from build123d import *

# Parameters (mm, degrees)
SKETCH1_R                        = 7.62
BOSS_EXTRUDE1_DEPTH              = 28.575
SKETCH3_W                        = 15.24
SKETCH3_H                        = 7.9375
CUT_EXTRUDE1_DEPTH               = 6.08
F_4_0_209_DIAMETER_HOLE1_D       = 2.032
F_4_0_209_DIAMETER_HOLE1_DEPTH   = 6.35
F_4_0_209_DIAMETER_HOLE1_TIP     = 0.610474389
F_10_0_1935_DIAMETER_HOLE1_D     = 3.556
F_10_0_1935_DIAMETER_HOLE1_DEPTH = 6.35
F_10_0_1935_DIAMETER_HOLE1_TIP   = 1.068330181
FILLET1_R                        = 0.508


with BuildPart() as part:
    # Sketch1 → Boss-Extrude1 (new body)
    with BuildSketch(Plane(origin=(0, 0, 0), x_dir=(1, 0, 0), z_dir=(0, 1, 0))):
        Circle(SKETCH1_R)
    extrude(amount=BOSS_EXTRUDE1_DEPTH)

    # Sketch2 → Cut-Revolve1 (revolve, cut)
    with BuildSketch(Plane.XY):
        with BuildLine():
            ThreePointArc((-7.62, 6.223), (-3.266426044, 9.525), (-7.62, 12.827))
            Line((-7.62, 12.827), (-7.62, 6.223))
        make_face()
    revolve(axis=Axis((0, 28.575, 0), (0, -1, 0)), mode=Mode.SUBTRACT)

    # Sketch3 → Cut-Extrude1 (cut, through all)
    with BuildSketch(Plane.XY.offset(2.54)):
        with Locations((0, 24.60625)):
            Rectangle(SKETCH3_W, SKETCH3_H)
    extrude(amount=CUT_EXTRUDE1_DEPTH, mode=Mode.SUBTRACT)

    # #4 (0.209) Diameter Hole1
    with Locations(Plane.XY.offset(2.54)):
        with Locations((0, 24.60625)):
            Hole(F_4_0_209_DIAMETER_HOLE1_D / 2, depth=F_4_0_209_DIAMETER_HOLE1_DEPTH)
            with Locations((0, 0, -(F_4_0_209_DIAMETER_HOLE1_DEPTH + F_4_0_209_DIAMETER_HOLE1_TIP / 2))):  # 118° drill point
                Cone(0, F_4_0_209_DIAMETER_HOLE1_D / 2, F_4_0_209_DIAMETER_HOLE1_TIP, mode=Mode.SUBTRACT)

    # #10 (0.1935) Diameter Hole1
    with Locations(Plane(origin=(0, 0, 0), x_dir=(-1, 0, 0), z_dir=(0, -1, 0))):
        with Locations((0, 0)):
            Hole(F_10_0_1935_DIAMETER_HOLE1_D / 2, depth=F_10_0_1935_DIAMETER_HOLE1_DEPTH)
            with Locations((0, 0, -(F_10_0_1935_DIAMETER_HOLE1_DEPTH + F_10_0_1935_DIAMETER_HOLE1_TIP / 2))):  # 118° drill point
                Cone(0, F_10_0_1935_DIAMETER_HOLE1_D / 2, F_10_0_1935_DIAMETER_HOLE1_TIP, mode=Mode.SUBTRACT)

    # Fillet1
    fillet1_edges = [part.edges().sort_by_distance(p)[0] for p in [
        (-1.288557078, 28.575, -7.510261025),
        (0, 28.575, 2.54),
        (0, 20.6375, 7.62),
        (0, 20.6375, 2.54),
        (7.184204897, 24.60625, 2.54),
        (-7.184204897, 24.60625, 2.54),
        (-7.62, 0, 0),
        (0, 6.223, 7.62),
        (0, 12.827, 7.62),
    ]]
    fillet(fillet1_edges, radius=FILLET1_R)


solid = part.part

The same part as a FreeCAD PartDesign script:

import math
import FreeCAD as App
import Part
import Sketcher
from FreeCAD import Vector
Q = App.Units.Quantity


def edges_at(feature, points):
    """Names of the edges that pass closest to the given points."""
    edges = feature.Shape.Edges
    near = lambda p: min(range(len(edges)), key=lambda i: edges[i].distToShape(Part.Vertex(*p))[0])
    return sorted({f"Edge{near(p) + 1}" for p in points})

doc = App.newDocument("Part")
body = doc.addObject("PartDesign::Body", "Body")

# Sketch on XZ plane
sketch1 = body.newObject("Sketcher::SketchObject", "Sketch")
sketch1.AttachmentSupport = (doc.getObject("XZ_Plane"), [""])
sketch1.MapMode = "FlatFace"
sketch1.addGeometry(Part.Circle(Vector(0, 0, 0), Vector(0, 0, 1), 8), False)
sketch1.addConstraint([
    Sketcher.Constraint("Coincident", 0, 3, -1, 1),
    Sketcher.Constraint("Diameter", 0, Q("0.6 in")),
])
pad1 = body.newObject("PartDesign::Pad", "Pad")
pad1.Profile = sketch1
pad1.Length = Q("1.125 in")
pad1.Reversed = True

# Sketch on XY plane
sketch2 = body.newObject("Sketcher::SketchObject", "Sketch001")
sketch2.AttachmentSupport = (doc.getObject("XY_Plane"), [""])
sketch2.MapMode = "FlatFace"
sketch2.addGeometry([
    Part.ArcOfCircle(Part.Circle(Vector(-6.7, 9.5, 0), Vector(0, 0, 1), 3.4), math.radians(-106), math.radians(106)),
    Part.LineSegment(Vector(-7.6, 12.8, 0), Vector(-7.6, 6.2, 0)),
], False)
sketch2.addConstraint([
    Sketcher.Constraint("Coincident", 0, 1, 1, 2),
    Sketcher.Constraint("Coincident", 1, 1, 0, 2),
    Sketcher.Constraint("Vertical", 1),
    Sketcher.Constraint("Radius", 0, Q("0.135 in")),
    Sketcher.Constraint("DistanceY", 1, 2, 1, 1, Q("0.26 in")),
    Sketcher.Constraint("DistanceX", 0, 1, -1, 1, Q("0.3 in")),
    Sketcher.Constraint("DistanceY", -1, 1, 0, 3, Q("0.375 in")),
])
groove = body.newObject("PartDesign::Groove", "Groove")
groove.Profile = sketch2
groove.ReferenceAxis = (sketch2, ["V_Axis"])
groove.Angle = 360

# Sketch on XY plane
sketch3 = body.newObject("Sketcher::SketchObject", "Sketch002")
sketch3.AttachmentSupport = (doc.getObject("XY_Plane"), [""])
sketch3.MapMode = "FlatFace"
sketch3.AttachmentOffset = App.Placement(Vector(0, 0, 0.1 * 25.4), App.Rotation())
sketch3.addGeometry([
    Part.LineSegment(Vector(-8, 29, 0), Vector(-8, 21, 0)),
    Part.LineSegment(Vector(-8, 21, 0), Vector(8, 21, 0)),
    Part.LineSegment(Vector(8, 21, 0), Vector(8, 29, 0)),
    Part.LineSegment(Vector(8, 29, 0), Vector(-8, 29, 0)),
], False)
sketch3.addConstraint([
    Sketcher.Constraint("Coincident", 0, 2, 1, 1),
    Sketcher.Constraint("Coincident", 1, 2, 2, 1),
    Sketcher.Constraint("Coincident", 2, 2, 3, 1),
    Sketcher.Constraint("Coincident", 3, 2, 0, 1),
    Sketcher.Constraint("Vertical", 0),
    Sketcher.Constraint("Horizontal", 1),
    Sketcher.Constraint("Vertical", 2),
    Sketcher.Constraint("Horizontal", 3),
    Sketcher.Constraint("DistanceX", 1, 1, 1, 2, Q("0.6 in")),
    Sketcher.Constraint("DistanceX", 0, 2, -1, 1, Q("0.3 in")),
    Sketcher.Constraint("DistanceY", 0, 2, 0, 1, Q("0.3125 in")),
    Sketcher.Constraint("DistanceY", -1, 1, 0, 2, Q("0.8125 in")),
])
pocket1 = body.newObject("PartDesign::Pocket", "Pocket")
pocket1.Profile = sketch3
pocket1.Type = "ThroughAll"
pocket1.Reversed = True

# Sketch on XY plane
sketch4 = body.newObject("Sketcher::SketchObject", "Sketch003")
sketch4.AttachmentSupport = (doc.getObject("XY_Plane"), [""])
sketch4.MapMode = "FlatFace"
sketch4.AttachmentOffset = App.Placement(Vector(0, 0, 0.1 * 25.4), App.Rotation())
sketch4.addGeometry(Part.Circle(Vector(0, 24.6, 0), Vector(0, 0, 1), 1), False)
sketch4.addConstraint([
    Sketcher.Constraint("PointOnObject", 0, 3, -2),
    Sketcher.Constraint("Diameter", 0, Q("0.08 in")),
    Sketcher.Constraint("DistanceY", -1, 1, 0, 3, Q("0.96875 in")),
])
doc.recompute()
hole = body.newObject("PartDesign::Hole", "Hole")
hole.Profile = sketch4
hole.ThreadType = "None"
hole.Diameter = Q("0.08 in")
hole.DepthType = "Dimension"
hole.Depth = Q("0.25 in")
hole.DrillPoint = "Angled"
hole.DrillPointAngle = 118

# Sketch on XZ plane
sketch5 = body.newObject("Sketcher::SketchObject", "Sketch004")
sketch5.AttachmentSupport = (doc.getObject("XZ_Plane"), [""])
sketch5.MapMode = "FlatFace"
sketch5.addGeometry(Part.Circle(Vector(0, 0, 0), Vector(0, 0, 1), 1.8), False)
sketch5.addConstraint([
    Sketcher.Constraint("Coincident", 0, 3, -1, 1),
    Sketcher.Constraint("Diameter", 0, Q("0.14 in")),
])
doc.recompute()
hole2 = body.newObject("PartDesign::Hole", "Hole001")
hole2.Profile = sketch5
hole2.ThreadType = "None"
hole2.Diameter = Q("0.14 in")
hole2.DepthType = "Dimension"
hole2.Depth = Q("0.25 in")
hole2.DrillPoint = "Angled"
hole2.DrillPointAngle = 118
doc.recompute()

fillet = body.newObject("PartDesign::Fillet", "Fillet")
fillet.Base = (hole2, edges_at(hole2, [
    (-1.289, 28.575, -7.51),
    (0, 28.575, 2.54),
    (0, 20.637, 7.62),
    (0, 20.637, 2.54),
    (7.184, 24.606, 2.54),
    (-7.184, 24.606, 2.54),
    (-7.62, 0, 0),
    (0, 6.223, 7.62),
    (0, 12.827, 7.62),
]))
fillet.Radius = Q("0.02 in")

doc.recompute()
